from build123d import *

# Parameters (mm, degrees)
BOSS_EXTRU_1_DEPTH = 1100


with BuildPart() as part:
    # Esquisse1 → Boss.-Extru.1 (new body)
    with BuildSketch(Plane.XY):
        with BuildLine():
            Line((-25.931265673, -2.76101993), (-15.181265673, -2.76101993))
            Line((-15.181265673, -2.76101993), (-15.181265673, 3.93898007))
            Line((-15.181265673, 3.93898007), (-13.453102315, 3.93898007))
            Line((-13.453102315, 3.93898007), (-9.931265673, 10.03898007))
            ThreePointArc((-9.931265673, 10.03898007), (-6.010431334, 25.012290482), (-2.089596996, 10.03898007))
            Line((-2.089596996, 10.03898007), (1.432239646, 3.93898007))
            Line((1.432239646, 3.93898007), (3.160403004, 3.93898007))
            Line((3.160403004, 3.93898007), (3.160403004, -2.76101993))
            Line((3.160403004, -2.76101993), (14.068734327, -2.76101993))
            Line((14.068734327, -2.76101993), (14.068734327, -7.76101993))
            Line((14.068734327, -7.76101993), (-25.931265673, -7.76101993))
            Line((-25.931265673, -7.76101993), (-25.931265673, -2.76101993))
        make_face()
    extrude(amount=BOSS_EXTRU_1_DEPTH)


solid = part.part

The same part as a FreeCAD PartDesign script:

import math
import FreeCAD as App
import Part
import Sketcher

V = App.Vector
Q = App.Units.Quantity

doc = App.newDocument("Part")
body = doc.addObject("PartDesign::Body", "Body")

sketch1 = body.newObject("Sketcher::SketchObject", "Sketch")
sketch1.AttachmentSupport = (doc.getObject("XY_Plane"), [""])
sketch1.MapMode = "FlatFace"
sketch1.addGeometry(Part.LineSegment(V(-15.2, -2.8, 0), V(-25.9, -2.8, 0)), False)
sketch1.addGeometry(Part.LineSegment(V(-25.9, -2.8, 0), V(-25.9, -7.8, 0)), False)
sketch1.addGeometry(Part.LineSegment(V(-25.9, -7.8, 0), V(14.1, -7.8, 0)), False)
sketch1.addGeometry(Part.LineSegment(V(14.1, -7.8, 0), V(14.1, -2.8, 0)), False)
sketch1.addGeometry(Part.LineSegment(V(14.1, -2.8, 0), V(3.2, -2.8, 0)), False)
sketch1.addGeometry(Part.LineSegment(V(3.2, -2.8, 0), V(3.2, 3.9, 0)), False)
sketch1.addGeometry(Part.LineSegment(V(3.2, 3.9, 0), V(1.4, 3.9, 0)), False)
sketch1.addGeometry(Part.LineSegment(V(1.4, 3.9, 0), V(-2.1, 10, 0)), False)
sketch1.addGeometry(Part.ArcOfCircle(Part.Circle(V(-6, 17, 0), V(0, 0, 1), 8), math.radians(-61), math.radians(241)), False)
sketch1.addGeometry(Part.LineSegment(V(-9.9, 10, 0), V(-13.5, 3.9, 0)), False)
sketch1.addGeometry(Part.LineSegment(V(-13.5, 3.9, 0), V(-15.2, 3.9, 0)), False)
sketch1.addGeometry(Part.LineSegment(V(-15.2, 3.9, 0), V(-15.2, -2.8, 0)), False)
sketch1.addConstraint(Sketcher.Constraint("Coincident", 0, 2, 1, 1))
sketch1.addConstraint(Sketcher.Constraint("Coincident", 1, 2, 2, 1))
sketch1.addConstraint(Sketcher.Constraint("Coincident", 2, 2, 3, 1))
sketch1.addConstraint(Sketcher.Constraint("Coincident", 3, 2, 4, 1))
sketch1.addConstraint(Sketcher.Constraint("Coincident", 4, 2, 5, 1))
sketch1.addConstraint(Sketcher.Constraint("Coincident", 5, 2, 6, 1))
sketch1.addConstraint(Sketcher.Constraint("Coincident", 6, 2, 7, 1))
sketch1.addConstraint(Sketcher.Constraint("Coincident", 7, 2, 8, 1))
sketch1.addConstraint(Sketcher.Constraint("Coincident", 8, 2, 9, 1))
sketch1.addConstraint(Sketcher.Constraint("Coincident", 9, 2, 10, 1))
sketch1.addConstraint(Sketcher.Constraint("Coincident", 10, 2, 11, 1))
sketch1.addConstraint(Sketcher.Constraint("Coincident", 11, 2, 0, 1))
sketch1.addConstraint(Sketcher.Constraint("Horizontal", 0))
sketch1.addConstraint(Sketcher.Constraint("Vertical", 1))
sketch1.addConstraint(Sketcher.Constraint("Horizontal", 2))
sketch1.addConstraint(Sketcher.Constraint("Vertical", 3))
sketch1.addConstraint(Sketcher.Constraint("Horizontal", 4))
sketch1.addConstraint(Sketcher.Constraint("Vertical", 5))
sketch1.addConstraint(Sketcher.Constraint("Horizontal", 6))
sketch1.addConstraint(Sketcher.Constraint("Horizontal", 10))
sketch1.addConstraint(Sketcher.Constraint("Vertical", 11))
sketch1.addConstraint(Sketcher.Constraint("Horizontal", 0, 2, 3, 2))
sketch1.addConstraint(Sketcher.Constraint("Horizontal", 7, 2, 8, 2))
sketch1.addConstraint(Sketcher.Constraint("Horizontal", 6, 2, 9, 2))
sketch1.addConstraint(Sketcher.Constraint("Equal", 6, 10))
sketch1.addConstraint(Sketcher.Constraint("Equal", 7, 9))
sketch1.addConstraint(Sketcher.Constraint("Radius", 8, 8.0))
sketch1.addConstraint(Sketcher.Constraint("DistanceX", 2, 1, 2, 2, 40.0))
sketch1.addConstraint(Sketcher.Constraint("DistanceY", 1, 2, 1, 1, 5.0))
sketch1.addConstraint(Sketcher.Constraint("Angle", 7, Q("120 deg")))
sketch1.addConstraint(Sketcher.Constraint("DistanceY", 5, 1, 5, 2, 6.7))
sketch1.addConstraint(Sketcher.Constraint("DistanceX", 0, 2, 0, 1, 10.75))
sketch1.addConstraint(Sketcher.Constraint("DistanceY", 6, 2, 7, 2, 6.1))
sketch1.addConstraint(Sketcher.Constraint("DistanceX", 7, 2, 5, 2, 5.25))
sketch1.addConstraint(Sketcher.Constraint("DistanceX", 4, 2, 4, 1, 10.908331))
sketch1.addConstraint(Sketcher.Constraint("DistanceX", 8, 3, -1, 1, 6.010431))
sketch1.addConstraint(Sketcher.Constraint("DistanceY", -1, 1, 8, 3, 17.01229))
pad1 = body.newObject("PartDesign::Pad", "Pad")
pad1.Profile = sketch1
pad1.Length = 1100

doc.recompute()
